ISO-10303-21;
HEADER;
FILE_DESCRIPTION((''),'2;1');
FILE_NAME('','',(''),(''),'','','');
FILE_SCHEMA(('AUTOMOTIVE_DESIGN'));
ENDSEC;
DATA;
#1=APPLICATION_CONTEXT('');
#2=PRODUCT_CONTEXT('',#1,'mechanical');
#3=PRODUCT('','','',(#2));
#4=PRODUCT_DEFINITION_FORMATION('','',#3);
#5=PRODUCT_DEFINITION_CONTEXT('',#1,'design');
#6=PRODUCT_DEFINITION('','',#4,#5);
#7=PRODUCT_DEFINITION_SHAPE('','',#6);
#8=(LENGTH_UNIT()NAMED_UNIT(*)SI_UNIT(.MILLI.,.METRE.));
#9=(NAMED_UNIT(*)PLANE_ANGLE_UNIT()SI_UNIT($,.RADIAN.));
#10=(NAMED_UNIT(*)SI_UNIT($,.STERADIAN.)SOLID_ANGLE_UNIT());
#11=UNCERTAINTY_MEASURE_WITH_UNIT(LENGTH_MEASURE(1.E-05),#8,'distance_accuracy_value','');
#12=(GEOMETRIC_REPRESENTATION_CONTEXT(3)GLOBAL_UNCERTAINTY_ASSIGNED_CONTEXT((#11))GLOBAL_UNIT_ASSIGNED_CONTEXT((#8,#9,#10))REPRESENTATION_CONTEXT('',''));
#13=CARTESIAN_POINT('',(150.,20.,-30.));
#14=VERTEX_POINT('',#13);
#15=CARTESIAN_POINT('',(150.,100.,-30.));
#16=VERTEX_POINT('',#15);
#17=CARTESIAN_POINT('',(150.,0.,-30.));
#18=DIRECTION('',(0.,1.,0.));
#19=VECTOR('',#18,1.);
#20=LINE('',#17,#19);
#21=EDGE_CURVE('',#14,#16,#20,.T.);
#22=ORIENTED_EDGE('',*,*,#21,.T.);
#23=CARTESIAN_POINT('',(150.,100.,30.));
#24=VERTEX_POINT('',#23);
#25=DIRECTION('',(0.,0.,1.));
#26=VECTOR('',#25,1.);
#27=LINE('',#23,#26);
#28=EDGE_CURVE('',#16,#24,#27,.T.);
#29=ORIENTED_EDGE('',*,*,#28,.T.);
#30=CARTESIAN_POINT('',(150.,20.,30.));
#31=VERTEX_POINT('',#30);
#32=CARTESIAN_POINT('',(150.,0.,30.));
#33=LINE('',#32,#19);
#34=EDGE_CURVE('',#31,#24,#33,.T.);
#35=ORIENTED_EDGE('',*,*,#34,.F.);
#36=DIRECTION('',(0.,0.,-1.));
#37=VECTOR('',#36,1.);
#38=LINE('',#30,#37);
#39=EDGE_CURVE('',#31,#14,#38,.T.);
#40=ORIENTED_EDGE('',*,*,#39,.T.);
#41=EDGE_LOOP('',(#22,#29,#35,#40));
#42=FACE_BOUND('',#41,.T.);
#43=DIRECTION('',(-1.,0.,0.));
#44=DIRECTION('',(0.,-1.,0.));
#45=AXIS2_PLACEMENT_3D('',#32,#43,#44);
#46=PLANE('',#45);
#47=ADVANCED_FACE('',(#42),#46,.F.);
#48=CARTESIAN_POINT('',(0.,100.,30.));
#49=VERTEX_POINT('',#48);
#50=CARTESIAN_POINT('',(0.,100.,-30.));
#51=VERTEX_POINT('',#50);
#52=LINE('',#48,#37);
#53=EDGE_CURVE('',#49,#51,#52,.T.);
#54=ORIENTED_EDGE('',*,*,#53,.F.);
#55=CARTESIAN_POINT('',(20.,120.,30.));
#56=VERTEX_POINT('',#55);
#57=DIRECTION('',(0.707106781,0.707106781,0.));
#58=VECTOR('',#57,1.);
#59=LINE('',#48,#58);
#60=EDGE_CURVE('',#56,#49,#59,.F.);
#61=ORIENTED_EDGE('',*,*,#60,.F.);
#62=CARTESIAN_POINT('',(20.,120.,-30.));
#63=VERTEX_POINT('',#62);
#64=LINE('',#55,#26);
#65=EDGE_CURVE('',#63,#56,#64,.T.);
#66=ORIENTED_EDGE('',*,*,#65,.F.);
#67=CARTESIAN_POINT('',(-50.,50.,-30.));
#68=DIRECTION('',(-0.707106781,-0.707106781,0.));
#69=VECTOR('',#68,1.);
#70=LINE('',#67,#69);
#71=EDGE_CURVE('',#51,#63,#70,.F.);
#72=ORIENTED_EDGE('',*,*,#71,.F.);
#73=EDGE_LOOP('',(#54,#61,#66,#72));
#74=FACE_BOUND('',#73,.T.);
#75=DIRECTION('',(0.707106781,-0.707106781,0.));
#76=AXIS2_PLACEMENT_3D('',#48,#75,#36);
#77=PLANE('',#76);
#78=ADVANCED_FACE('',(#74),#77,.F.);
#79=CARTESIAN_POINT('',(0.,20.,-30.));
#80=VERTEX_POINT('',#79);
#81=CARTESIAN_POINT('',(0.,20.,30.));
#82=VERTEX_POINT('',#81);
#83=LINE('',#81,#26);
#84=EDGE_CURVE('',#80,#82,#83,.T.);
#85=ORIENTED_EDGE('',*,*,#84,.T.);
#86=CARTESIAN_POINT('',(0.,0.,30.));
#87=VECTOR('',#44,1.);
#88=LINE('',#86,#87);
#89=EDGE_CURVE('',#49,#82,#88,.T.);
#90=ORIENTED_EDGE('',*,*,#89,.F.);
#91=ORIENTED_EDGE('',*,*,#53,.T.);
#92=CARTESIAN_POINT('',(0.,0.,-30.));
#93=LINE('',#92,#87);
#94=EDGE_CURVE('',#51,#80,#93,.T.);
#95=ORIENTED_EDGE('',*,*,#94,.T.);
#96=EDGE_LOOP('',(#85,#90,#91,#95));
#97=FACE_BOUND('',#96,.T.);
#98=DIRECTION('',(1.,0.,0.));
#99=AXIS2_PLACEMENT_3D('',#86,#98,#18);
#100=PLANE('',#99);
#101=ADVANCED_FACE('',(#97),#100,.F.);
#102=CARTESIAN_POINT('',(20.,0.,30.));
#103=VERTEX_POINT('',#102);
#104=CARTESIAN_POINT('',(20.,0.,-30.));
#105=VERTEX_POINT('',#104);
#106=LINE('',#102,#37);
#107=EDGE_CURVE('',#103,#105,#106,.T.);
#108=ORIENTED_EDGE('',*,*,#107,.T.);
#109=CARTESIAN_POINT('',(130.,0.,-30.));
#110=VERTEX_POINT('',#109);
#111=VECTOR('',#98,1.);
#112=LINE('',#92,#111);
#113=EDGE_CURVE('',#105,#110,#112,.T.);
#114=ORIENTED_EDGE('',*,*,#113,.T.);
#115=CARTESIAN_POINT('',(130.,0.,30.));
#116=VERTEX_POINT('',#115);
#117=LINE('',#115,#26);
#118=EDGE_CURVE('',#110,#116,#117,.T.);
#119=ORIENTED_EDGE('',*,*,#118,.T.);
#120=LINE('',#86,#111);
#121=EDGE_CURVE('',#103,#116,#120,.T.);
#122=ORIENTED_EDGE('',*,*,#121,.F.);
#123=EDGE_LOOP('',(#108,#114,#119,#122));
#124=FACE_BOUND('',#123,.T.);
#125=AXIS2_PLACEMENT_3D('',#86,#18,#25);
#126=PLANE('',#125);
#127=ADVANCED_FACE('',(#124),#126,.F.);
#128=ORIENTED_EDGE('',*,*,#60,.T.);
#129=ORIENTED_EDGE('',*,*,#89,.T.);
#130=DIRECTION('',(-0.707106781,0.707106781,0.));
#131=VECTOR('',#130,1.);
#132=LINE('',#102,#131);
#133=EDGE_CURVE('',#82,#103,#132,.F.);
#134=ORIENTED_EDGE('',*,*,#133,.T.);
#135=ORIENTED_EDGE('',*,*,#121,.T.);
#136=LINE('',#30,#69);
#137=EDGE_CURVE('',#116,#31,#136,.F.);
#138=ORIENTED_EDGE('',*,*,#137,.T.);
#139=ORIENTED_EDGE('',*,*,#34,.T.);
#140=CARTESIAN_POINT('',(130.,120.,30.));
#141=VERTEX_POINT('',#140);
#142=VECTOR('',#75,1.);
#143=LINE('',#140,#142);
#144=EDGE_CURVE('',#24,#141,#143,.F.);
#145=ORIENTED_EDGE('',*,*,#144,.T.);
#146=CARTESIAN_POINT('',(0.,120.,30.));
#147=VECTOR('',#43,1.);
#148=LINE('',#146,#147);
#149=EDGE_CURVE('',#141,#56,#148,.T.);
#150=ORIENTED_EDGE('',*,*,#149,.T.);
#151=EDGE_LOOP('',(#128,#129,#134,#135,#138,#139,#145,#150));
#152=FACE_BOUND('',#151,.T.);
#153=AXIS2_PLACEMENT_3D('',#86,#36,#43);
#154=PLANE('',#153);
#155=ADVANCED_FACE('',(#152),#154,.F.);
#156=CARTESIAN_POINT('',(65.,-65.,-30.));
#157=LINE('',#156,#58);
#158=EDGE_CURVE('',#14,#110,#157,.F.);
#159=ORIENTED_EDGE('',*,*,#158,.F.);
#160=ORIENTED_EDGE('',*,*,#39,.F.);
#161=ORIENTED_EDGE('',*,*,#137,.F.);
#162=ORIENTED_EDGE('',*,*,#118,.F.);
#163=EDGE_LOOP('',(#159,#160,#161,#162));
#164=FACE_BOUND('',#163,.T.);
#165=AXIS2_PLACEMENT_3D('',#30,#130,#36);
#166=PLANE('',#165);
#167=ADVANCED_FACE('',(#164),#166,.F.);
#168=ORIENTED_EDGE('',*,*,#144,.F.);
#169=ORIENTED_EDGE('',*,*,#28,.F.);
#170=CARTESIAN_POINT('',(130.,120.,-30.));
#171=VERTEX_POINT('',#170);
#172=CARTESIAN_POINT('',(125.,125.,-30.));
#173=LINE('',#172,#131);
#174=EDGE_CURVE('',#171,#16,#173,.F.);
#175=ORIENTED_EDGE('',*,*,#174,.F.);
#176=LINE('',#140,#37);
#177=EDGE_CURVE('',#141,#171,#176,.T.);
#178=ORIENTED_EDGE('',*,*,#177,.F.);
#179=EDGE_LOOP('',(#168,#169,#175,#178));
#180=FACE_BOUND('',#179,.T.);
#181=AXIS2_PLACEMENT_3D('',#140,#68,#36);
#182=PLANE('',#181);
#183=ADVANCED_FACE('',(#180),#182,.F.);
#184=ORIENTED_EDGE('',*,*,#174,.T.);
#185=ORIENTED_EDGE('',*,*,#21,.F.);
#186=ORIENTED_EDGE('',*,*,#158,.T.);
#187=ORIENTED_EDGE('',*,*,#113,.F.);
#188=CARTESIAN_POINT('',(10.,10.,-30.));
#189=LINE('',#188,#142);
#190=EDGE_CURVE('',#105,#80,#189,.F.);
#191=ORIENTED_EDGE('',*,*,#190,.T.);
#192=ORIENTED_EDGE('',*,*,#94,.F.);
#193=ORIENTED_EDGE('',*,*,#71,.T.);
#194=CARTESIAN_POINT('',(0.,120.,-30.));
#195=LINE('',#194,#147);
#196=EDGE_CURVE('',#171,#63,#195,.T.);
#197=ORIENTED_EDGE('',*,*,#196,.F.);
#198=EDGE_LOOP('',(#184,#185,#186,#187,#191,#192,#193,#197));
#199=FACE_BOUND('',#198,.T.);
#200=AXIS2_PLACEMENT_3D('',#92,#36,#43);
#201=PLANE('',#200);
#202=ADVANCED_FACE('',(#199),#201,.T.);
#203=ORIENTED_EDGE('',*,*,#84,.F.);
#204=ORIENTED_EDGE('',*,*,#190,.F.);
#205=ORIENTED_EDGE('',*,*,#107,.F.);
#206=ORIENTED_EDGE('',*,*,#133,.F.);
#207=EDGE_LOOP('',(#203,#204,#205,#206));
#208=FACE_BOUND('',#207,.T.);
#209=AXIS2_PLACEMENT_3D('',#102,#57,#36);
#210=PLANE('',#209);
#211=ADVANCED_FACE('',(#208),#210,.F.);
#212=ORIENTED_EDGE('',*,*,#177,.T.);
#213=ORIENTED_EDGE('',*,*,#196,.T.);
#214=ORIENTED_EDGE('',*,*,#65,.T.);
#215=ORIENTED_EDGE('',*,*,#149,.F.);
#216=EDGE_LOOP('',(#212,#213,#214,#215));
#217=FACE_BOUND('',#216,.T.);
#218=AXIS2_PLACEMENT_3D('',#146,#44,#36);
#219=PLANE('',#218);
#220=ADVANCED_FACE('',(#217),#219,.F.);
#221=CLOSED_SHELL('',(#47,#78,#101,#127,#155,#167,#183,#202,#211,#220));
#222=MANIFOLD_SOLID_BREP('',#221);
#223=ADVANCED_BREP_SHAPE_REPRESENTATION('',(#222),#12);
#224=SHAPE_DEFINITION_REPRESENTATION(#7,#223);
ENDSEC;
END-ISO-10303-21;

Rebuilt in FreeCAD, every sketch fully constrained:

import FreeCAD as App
import Part
import Sketcher
Q = App.Units.Quantity


def edges_at(feature, points):
    """Names of the edges that pass closest to the given points."""
    edges = feature.Shape.Edges
    near = lambda p: min(range(len(edges)), key=lambda i: edges[i].distToShape(Part.Vertex(*p))[0])
    return sorted({f"Edge{near(p) + 1}" for p in points})


def add_polygon(sketch, points):
    """Adds a closed chain of lines whose ends are joined by coincident constraints."""
    first, n = sketch.GeometryCount, len(points)
    for a, b in zip(points, points[1:] + points[:1]):
        sketch.addGeometry(Part.LineSegment(App.Vector(*a, 0), App.Vector(*b, 0)), False)
    for i in range(n):
        sketch.addConstraint(Sketcher.Constraint("Coincident", first + i, 2, first + (i + 1) % n, 1))

doc = App.newDocument("Part")
body = doc.addObject("PartDesign::Body", "Body")

sketch1 = doc.addObject("Sketcher::SketchObject", "Sketch")
body.addObject(sketch1)
sketch1.AttachmentSupport = (doc.XY_Plane, [""])
sketch1.MapMode = "FlatFace"
add_polygon(sketch1, [(0, 120), (0, 0), (150, 0), (150, 120)])
sketch1.addConstraint(Sketcher.Constraint("Vertical", 0))
sketch1.addConstraint(Sketcher.Constraint("Horizontal", 1))
sketch1.addConstraint(Sketcher.Constraint("Vertical", 2))
sketch1.addConstraint(Sketcher.Constraint("Horizontal", 3))
sketch1.addConstraint(Sketcher.Constraint("Coincident", 0, 2, -1, 1))
sketch1.addConstraint(Sketcher.Constraint("DistanceX", 1, 1, 1, 2, Q("150 mm")))
sketch1.addConstraint(Sketcher.Constraint("DistanceY", 0, 2, 0, 1, Q("120 mm")))
pad1 = doc.addObject("PartDesign::Pad", "Pad")
body.addObject(pad1)
pad1.Profile = sketch1
pad1.Length = 60
pad1.Midplane = True
doc.recompute()

chamfer = doc.addObject("PartDesign::Chamfer", "Chamfer")
body.addObject(chamfer)
chamfer.Base = (pad1, edges_at(pad1, [
    (0, 120, 0),
    (150, 120, 0),
    (150, 0, 0),
    (0, 0, 0),
]))
chamfer.Size = 20

doc.recompute()
